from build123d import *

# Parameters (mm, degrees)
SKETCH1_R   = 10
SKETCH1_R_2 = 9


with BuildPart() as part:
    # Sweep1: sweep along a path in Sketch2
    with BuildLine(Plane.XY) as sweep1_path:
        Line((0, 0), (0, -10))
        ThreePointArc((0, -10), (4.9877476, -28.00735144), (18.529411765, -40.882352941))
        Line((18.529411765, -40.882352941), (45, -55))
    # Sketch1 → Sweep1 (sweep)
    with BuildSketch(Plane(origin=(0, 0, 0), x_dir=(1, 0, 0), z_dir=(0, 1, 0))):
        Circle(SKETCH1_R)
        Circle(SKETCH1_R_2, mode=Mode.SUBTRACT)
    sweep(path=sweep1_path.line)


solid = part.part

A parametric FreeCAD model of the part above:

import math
import FreeCAD as App
import Part
import Sketcher

doc = App.newDocument("Part")
body = doc.addObject("PartDesign::Body", "Body")

# Sketch on XZ plane
sketch1 = doc.addObject("Sketcher::SketchObject", "Sketch")
body.addObject(sketch1)
sketch1.AttachmentSupport = (doc.XZ_Plane, [""])
sketch1.MapMode = "FlatFace"
sketch1.addGeometry(Part.Circle(App.Vector(0, 0, 0), App.Vector(0, 0, 1), 10), False)
sketch1.addGeometry(Part.Circle(App.Vector(0, 0, 0), App.Vector(0, 0, 1), 9), False)
sketch1.addConstraint(Sketcher.Constraint("Coincident", 0, 3, -1, 1))
sketch1.addConstraint(Sketcher.Constraint("Coincident", 1, 3, -1, 1))
sketch1.addConstraint(Sketcher.Constraint("Diameter", 0, 20.0))
sketch1.addConstraint(Sketcher.Constraint("Diameter", 1, 18.0))

# Sketch on XY plane
sketch2 = doc.addObject("Sketcher::SketchObject", "Sketch001")
body.addObject(sketch2)
sketch2.AttachmentSupport = (doc.XY_Plane, [""])
sketch2.MapMode = "FlatFace"
sketch2.addGeometry(Part.LineSegment(App.Vector(0, 0, 0), App.Vector(0, -10, 0)), False)
sketch2.addGeometry(Part.ArcOfCircle(Part.Circle(App.Vector(35, -10, 0), App.Vector(0, 0, 1), 35), math.radians(180), math.radians(242)), False)
sketch2.addGeometry(Part.LineSegment(App.Vector(19, -41, 0), App.Vector(45, -55, 0)), False)
sketch2.addConstraint(Sketcher.Constraint("Tangent", 0, 2, 1, 1))
sketch2.addConstraint(Sketcher.Constraint("Tangent", 1, 2, 2, 1))
sketch2.addConstraint(Sketcher.Constraint("Vertical", 0))
sketch2.addConstraint(Sketcher.Constraint("Coincident", 0, 1, -1, 1))
sketch2.addConstraint(Sketcher.Constraint("Radius", 1, 35.0))
sketch2.addConstraint(Sketcher.Constraint("DistanceY", 0, 2, 0, 1, 10.0))
sketch2.addConstraint(Sketcher.Constraint("Distance", 2, 30.0))
sketch2.addConstraint(Sketcher.Constraint("DistanceX", -1, 1, 2, 2, 45.0))
doc.recompute()

additivepipe = doc.addObject("PartDesign::AdditivePipe", "AdditivePipe")
body.addObject(additivepipe)
additivepipe.Profile = sketch1
additivepipe.Spine = (sketch2, ["Edge1", "Edge2", "Edge3"])

doc.recompute()
